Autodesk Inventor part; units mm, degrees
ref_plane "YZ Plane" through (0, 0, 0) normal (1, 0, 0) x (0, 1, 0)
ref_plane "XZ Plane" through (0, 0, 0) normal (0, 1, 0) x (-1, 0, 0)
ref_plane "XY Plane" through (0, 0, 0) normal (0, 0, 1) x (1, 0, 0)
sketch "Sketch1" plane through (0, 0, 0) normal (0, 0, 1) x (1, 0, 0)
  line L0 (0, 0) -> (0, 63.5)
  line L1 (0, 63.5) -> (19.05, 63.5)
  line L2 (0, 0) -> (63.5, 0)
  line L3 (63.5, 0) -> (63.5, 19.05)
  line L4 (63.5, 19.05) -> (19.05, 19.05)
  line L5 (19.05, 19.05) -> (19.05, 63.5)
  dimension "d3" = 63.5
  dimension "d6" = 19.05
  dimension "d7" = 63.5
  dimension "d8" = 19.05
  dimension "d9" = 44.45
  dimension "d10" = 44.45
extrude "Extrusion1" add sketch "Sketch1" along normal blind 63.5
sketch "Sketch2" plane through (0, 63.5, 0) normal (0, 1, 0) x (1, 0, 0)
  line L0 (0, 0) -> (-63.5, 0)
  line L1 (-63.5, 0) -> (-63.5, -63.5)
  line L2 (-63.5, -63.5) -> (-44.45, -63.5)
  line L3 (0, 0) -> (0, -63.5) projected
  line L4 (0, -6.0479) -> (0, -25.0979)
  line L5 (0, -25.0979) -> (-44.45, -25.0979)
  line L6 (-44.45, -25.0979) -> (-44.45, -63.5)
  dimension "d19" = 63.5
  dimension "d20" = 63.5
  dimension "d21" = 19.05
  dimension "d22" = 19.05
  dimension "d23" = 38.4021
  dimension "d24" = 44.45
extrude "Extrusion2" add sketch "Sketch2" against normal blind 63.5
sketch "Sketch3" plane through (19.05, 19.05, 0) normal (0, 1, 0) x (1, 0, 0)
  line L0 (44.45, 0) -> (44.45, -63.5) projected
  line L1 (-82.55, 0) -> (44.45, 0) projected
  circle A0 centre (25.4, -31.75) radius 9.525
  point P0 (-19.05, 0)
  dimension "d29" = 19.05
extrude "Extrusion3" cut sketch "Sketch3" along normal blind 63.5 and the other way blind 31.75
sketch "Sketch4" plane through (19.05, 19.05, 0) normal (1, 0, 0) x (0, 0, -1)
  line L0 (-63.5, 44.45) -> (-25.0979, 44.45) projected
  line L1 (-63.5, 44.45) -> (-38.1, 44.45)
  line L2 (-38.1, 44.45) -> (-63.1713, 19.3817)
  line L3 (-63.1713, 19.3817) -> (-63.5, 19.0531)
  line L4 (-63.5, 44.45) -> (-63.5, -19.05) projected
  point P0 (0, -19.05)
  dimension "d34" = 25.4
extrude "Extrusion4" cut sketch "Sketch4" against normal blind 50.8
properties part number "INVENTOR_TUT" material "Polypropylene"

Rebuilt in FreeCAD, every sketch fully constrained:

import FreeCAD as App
import Part
import Sketcher
Q = App.Units.Quantity

doc = App.newDocument("Part")
params = doc.addObject("Spreadsheet::Sheet", "Params")
for row, (alias, value) in enumerate([
    ("sketch1_width", "2.5 in"),
    ("sketch1_width2", "1.75 in"),
    ("pad1_length", "2.5 in"),
    ("sketch2_width", "2.5 in"),
    ("sketch2_width2", "0.75 in"),
    ("pad2_length", "2.5 in"),
    ("sketch3_diameter", "0.75 in"),
    ("sketch4_height", "1 in"),
    ("pocket2_length", "2 in"),
], start=1):
    params.set(f"A{row}", alias)
    params.set(f"B{row}", "=" + value)
    params.setAlias(f"B{row}", alias)

body = doc.addObject("PartDesign::Body", "Body")

sketch1 = body.newObject("Sketcher::SketchObject", "Sketch")
sketch1.AttachmentSupport = (doc.getObject("XY_Plane"), [""])
sketch1.MapMode = "FlatFace"
sketch1.addGeometry(Part.LineSegment(App.Vector(0, 64, 0), App.Vector(0, 0, 0)), False)
sketch1.addGeometry(Part.LineSegment(App.Vector(0, 0, 0), App.Vector(64, 0, 0)), False)
sketch1.addGeometry(Part.LineSegment(App.Vector(64, 0, 0), App.Vector(64, 19, 0)), False)
sketch1.addGeometry(Part.LineSegment(App.Vector(64, 19, 0), App.Vector(19, 19, 0)), False)
sketch1.addGeometry(Part.LineSegment(App.Vector(19, 19, 0), App.Vector(19, 64, 0)), False)
sketch1.addGeometry(Part.LineSegment(App.Vector(19, 64, 0), App.Vector(0, 64, 0)), False)
sketch1.addConstraint(Sketcher.Constraint("Coincident", 0, 2, 1, 1))
sketch1.addConstraint(Sketcher.Constraint("Coincident", 1, 2, 2, 1))
sketch1.addConstraint(Sketcher.Constraint("Coincident", 2, 2, 3, 1))
sketch1.addConstraint(Sketcher.Constraint("Coincident", 3, 2, 4, 1))
sketch1.addConstraint(Sketcher.Constraint("Coincident", 4, 2, 5, 1))
sketch1.addConstraint(Sketcher.Constraint("Coincident", 5, 2, 0, 1))
sketch1.addConstraint(Sketcher.Constraint("Vertical", 0))
sketch1.addConstraint(Sketcher.Constraint("Horizontal", 1))
sketch1.addConstraint(Sketcher.Constraint("Vertical", 2))
sketch1.addConstraint(Sketcher.Constraint("Horizontal", 3))
sketch1.addConstraint(Sketcher.Constraint("Vertical", 4))
sketch1.addConstraint(Sketcher.Constraint("Horizontal", 5))
sketch1.addConstraint(Sketcher.Constraint("Coincident", 0, 2, -1, 1))
sketch1.addConstraint(Sketcher.Constraint("Equal", 1, 0))
sketch1.addConstraint(Sketcher.Constraint("Equal", 5, 2))
sketch1.addConstraint(Sketcher.Constraint("DistanceX", 1, 1, 1, 2, Q("2.5 in")))
sketch1.addConstraint(Sketcher.Constraint("DistanceX", 3, 2, 3, 1, Q("1.75 in")))
sketch1.setExpression("Constraints[15]", "Params.sketch1_width")
sketch1.setExpression("Constraints[16]", "Params.sketch1_width2")
pad1 = body.newObject("PartDesign::Pad", "Pad")
pad1.Profile = sketch1
pad1.setExpression("Length", "Params.pad1_length")

sketch2 = body.newObject("Sketcher::SketchObject", "Sketch001")
sketch2.AttachmentSupport = (doc.getObject("XZ_Plane"), [""])
sketch2.MapMode = "FlatFace"
sketch2.AttachmentOffset = App.Placement(App.Vector(0, 0, -2.5 * 25.4), App.Rotation())
sketch2.addGeometry(Part.LineSegment(App.Vector(0, 25, 0), App.Vector(0, 0, 0)), False)
sketch2.addGeometry(Part.LineSegment(App.Vector(0, 0, 0), App.Vector(-64, 0, 0)), False)
sketch2.addGeometry(Part.LineSegment(App.Vector(-64, 0, 0), App.Vector(-64, 64, 0)), False)
sketch2.addGeometry(Part.LineSegment(App.Vector(-64, 64, 0), App.Vector(-44, 64, 0)), False)
sketch2.addGeometry(Part.LineSegment(App.Vector(-44, 64, 0), App.Vector(-44, 25, 0)), False)
sketch2.addGeometry(Part.LineSegment(App.Vector(-44, 25, 0), App.Vector(0, 25, 0)), False)
sketch2.addConstraint(Sketcher.Constraint("Coincident", 0, 2, 1, 1))
sketch2.addConstraint(Sketcher.Constraint("Coincident", 1, 2, 2, 1))
sketch2.addConstraint(Sketcher.Constraint("Coincident", 2, 2, 3, 1))
sketch2.addConstraint(Sketcher.Constraint("Coincident", 3, 2, 4, 1))
sketch2.addConstraint(Sketcher.Constraint("Coincident", 4, 2, 5, 1))
sketch2.addConstraint(Sketcher.Constraint("Coincident", 5, 2, 0, 1))
sketch2.addConstraint(Sketcher.Constraint("Vertical", 0))
sketch2.addConstraint(Sketcher.Constraint("Horizontal", 1))
sketch2.addConstraint(Sketcher.Constraint("Vertical", 2))
sketch2.addConstraint(Sketcher.Constraint("Horizontal", 3))
sketch2.addConstraint(Sketcher.Constraint("Vertical", 4))
sketch2.addConstraint(Sketcher.Constraint("Horizontal", 5))
sketch2.addConstraint(Sketcher.Constraint("Coincident", 0, 2, -1, 1))
sketch2.addConstraint(Sketcher.Constraint("Equal", 1, 2))
sketch2.addConstraint(Sketcher.Constraint("DistanceX", 1, 2, 1, 1, Q("2.5 in")))
sketch2.addConstraint(Sketcher.Constraint("DistanceX", 3, 1, 3, 2, Q("0.75 in")))
sketch2.addConstraint(Sketcher.Constraint("DistanceY", 4, 2, 4, 1, Q("1.5119 in")))
sketch2.setExpression("Constraints[14]", "Params.sketch2_width")
sketch2.setExpression("Constraints[15]", "Params.sketch2_width2")
pad2 = body.newObject("PartDesign::Pad", "Pad001")
pad2.Profile = sketch2
pad2.setExpression("Length", "Params.pad2_length")

sketch3 = body.newObject("Sketcher::SketchObject", "Sketch002")
sketch3.AttachmentSupport = (doc.getObject("XZ_Plane"), [""])
sketch3.MapMode = "FlatFace"
sketch3.AttachmentOffset = App.Placement(App.Vector(0, 0, -0.75 * 25.4), App.Rotation())
sketch3.addGeometry(Part.Circle(App.Vector(44, 32, 0), App.Vector(0, 0, 1), 10), False)
sketch3.addConstraint(Sketcher.Constraint("Diameter", 0, Q("0.75 in")))
sketch3.addConstraint(Sketcher.Constraint("DistanceX", -1, 1, 0, 3, Q("1.75 in")))
sketch3.addConstraint(Sketcher.Constraint("DistanceY", -1, 1, 0, 3, Q("1.25 in")))
sketch3.setExpression("Constraints[0]", "Params.sketch3_diameter")
pocket1 = body.newObject("PartDesign::Pocket", "Pocket")
pocket1.Profile = sketch3
pocket1.Type = "ThroughAll"
pocket1.Midplane = True

sketch4 = body.newObject("Sketcher::SketchObject", "Sketch003")
sketch4.AttachmentSupport = (doc.getObject("YZ_Plane"), [""])
sketch4.MapMode = "FlatFace"
sketch4.AttachmentOffset = App.Placement(App.Vector(0, 0, 0.75 * 25.4), App.Rotation())
sketch4.addGeometry(Part.LineSegment(App.Vector(63.5, 38.1, 0), App.Vector(63.5, 63.5, 0)), False)
sketch4.addGeometry(Part.LineSegment(App.Vector(63.5, 63.5, 0), App.Vector(38.1, 63.5, 0)), False)
sketch4.addGeometry(Part.LineSegment(App.Vector(38.1, 63.5, 0), App.Vector(38.43, 63.17, 0)), False)
sketch4.addGeometry(Part.LineSegment(App.Vector(38.43, 63.17, 0), App.Vector(63.5, 38.1, 0)), False)
sketch4.addConstraint(Sketcher.Constraint("Coincident", 0, 2, 1, 1))
sketch4.addConstraint(Sketcher.Constraint("Coincident", 1, 2, 2, 1))
sketch4.addConstraint(Sketcher.Constraint("Coincident", 2, 2, 3, 1))
sketch4.addConstraint(Sketcher.Constraint("Coincident", 3, 2, 0, 1))
sketch4.addConstraint(Sketcher.Constraint("Vertical", 0))
sketch4.addConstraint(Sketcher.Constraint("Horizontal", 1))
sketch4.addConstraint(Sketcher.Constraint("Parallel", 2, 3))
sketch4.addConstraint(Sketcher.Constraint("DistanceY", 0, 1, 0, 2, Q("1 in")))
sketch4.addConstraint(Sketcher.Constraint("DistanceX", -1, 1, 0, 2, Q("2.5 in")))
sketch4.addConstraint(Sketcher.Constraint("DistanceY", -1, 1, 0, 2, Q("2.5 in")))
sketch4.addConstraint(Sketcher.Constraint("Distance", 2, Q("0.0183 in")))
sketch4.addConstraint(Sketcher.Constraint("DistanceX", 1, 2, 1, 1, 25.397))
sketch4.setExpression("Constraints[7]", "Params.sketch4_height")
pocket2 = body.newObject("PartDesign::Pocket", "Pocket001")
pocket2.Profile = sketch4
pocket2.setExpression("Length", "Params.pocket2_length")

doc.recompute()
